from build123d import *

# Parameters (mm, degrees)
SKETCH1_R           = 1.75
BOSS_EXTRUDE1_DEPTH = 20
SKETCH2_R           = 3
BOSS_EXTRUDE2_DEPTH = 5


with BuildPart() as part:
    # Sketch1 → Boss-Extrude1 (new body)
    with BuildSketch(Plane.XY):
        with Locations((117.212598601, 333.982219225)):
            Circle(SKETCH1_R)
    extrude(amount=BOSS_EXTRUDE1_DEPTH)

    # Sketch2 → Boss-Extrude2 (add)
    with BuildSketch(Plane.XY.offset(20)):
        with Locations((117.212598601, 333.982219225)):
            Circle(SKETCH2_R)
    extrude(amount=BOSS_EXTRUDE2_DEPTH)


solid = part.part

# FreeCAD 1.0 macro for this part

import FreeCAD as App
import Part
import Sketcher
from FreeCAD import Vector
Q = App.Units.Quantity

doc = App.newDocument("Part")
body = doc.addObject("PartDesign::Body", "Body")

# Sketch on XY plane
sketch1 = body.newObject("Sketcher::SketchObject", "Sketch")
sketch1.AttachmentSupport = (doc.getObject("XY_Plane"), [""])
sketch1.MapMode = "FlatFace"
sketch1.addGeometry(Part.Circle(Vector(117.2, 334, 0), Vector(0, 0, 1), 1.8), False)
sketch1.addConstraint([
    Sketcher.Constraint("Diameter", 0, Q("3.5 mm")),
    Sketcher.Constraint("DistanceX", -1, 1, 0, 3, Q("117.212599 mm")),
    Sketcher.Constraint("DistanceY", -1, 1, 0, 3, Q("333.982219 mm")),
])
pad1 = body.newObject("PartDesign::Pad", "Pad")
pad1.Profile = sketch1
pad1.Length = 20

# Sketch on XY plane
sketch2 = body.newObject("Sketcher::SketchObject", "Sketch001")
sketch2.AttachmentSupport = (doc.getObject("XY_Plane"), [""])
sketch2.MapMode = "FlatFace"
sketch2.AttachmentOffset = App.Placement(Vector(0, 0, 20), App.Rotation())
sketch2.addGeometry(Part.Circle(Vector(117.2, 334, 0), Vector(0, 0, 1), 3), False)
sketch2.addConstraint([
    Sketcher.Constraint("Diameter", 0, Q("6 mm")),
    Sketcher.Constraint("DistanceX", -1, 1, 0, 3, Q("117.212599 mm")),
    Sketcher.Constraint("DistanceY", -1, 1, 0, 3, Q("333.982219 mm")),
])
pad2 = body.newObject("PartDesign::Pad", "Pad001")
pad2.Profile = sketch2
pad2.Length = 5

doc.recompute()
